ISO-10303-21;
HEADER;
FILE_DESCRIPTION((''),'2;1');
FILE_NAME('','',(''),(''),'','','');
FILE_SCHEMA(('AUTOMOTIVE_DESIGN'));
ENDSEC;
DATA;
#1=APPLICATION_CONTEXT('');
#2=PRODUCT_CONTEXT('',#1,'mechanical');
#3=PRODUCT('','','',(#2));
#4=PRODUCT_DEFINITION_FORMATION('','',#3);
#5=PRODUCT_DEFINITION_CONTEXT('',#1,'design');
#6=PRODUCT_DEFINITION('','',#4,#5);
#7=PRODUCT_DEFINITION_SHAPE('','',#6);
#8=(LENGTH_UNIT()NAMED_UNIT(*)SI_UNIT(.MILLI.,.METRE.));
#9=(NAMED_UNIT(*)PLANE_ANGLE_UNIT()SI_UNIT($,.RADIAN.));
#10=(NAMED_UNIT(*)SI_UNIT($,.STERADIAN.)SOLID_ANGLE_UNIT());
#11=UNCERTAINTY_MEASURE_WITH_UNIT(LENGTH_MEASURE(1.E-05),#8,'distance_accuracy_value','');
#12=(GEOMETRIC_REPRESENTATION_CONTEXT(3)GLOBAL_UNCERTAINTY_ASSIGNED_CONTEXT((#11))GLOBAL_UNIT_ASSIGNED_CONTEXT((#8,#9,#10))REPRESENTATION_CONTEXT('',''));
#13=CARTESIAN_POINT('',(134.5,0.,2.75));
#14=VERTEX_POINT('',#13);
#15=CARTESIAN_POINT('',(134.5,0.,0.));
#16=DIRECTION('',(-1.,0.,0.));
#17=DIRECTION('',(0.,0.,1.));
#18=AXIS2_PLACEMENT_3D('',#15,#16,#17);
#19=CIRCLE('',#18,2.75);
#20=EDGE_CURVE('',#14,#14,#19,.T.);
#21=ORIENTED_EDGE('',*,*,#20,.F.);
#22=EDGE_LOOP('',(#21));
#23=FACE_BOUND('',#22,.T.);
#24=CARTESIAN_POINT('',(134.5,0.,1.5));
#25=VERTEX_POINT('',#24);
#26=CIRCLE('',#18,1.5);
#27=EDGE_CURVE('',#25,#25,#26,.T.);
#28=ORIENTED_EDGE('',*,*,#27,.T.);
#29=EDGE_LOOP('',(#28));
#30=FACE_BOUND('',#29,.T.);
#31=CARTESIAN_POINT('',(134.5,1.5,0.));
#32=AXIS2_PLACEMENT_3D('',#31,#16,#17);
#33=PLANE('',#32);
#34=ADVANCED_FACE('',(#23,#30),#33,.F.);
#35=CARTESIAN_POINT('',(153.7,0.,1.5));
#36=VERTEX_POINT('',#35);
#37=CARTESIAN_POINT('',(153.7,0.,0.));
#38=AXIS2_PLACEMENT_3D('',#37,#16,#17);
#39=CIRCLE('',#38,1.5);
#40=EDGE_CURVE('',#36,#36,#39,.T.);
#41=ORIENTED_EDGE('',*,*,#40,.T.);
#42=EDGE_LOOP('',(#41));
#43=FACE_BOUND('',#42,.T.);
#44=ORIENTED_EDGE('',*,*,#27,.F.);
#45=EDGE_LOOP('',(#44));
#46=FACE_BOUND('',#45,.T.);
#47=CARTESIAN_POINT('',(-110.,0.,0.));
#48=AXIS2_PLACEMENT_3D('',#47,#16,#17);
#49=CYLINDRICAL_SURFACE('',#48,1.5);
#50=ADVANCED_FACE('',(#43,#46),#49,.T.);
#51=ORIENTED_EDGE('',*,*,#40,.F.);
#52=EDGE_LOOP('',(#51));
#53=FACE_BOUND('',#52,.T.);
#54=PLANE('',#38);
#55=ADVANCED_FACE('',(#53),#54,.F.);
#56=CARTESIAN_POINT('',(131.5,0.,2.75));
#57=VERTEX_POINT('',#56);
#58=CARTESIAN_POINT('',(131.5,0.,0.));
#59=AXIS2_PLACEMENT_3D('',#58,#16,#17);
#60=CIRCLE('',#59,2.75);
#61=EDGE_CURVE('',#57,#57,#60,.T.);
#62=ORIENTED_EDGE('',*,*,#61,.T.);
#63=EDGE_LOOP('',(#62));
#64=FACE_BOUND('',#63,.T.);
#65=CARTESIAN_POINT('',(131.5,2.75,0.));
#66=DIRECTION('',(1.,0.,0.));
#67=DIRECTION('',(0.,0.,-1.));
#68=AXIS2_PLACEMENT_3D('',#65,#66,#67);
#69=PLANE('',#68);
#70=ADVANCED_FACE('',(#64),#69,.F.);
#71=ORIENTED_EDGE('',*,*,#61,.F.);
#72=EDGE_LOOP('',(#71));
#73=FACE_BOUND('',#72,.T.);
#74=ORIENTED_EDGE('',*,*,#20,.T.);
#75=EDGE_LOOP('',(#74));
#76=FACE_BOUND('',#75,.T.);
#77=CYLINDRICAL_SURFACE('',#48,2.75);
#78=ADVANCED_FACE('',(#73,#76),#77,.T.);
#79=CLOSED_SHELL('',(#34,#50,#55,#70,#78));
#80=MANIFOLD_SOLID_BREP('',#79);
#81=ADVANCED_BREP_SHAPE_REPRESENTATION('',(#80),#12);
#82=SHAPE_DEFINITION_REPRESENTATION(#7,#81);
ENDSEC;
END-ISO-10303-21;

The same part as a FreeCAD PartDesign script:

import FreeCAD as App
import Part
import Sketcher

V = App.Vector
Q = App.Units.Quantity

doc = App.newDocument("Part")
params = doc.addObject("Spreadsheet::Sheet", "Params")
for row, (alias, value) in enumerate([
    ("sketch1_width", "3 mm"),
    ("sketch1_width2", "22.2 mm"),
    ("sketch1_height", "1.5 mm"),
    ("sketch1_height2", "1.25 mm"),
    ("revolution_angle", "360 deg"),
], start=1):
    params.set(f"A{row}", alias)
    params.set(f"B{row}", "=" + value)
    params.setAlias(f"B{row}", alias)

body = doc.addObject("PartDesign::Body", "Body")

# Sketch on XY plane
sketch1 = body.newObject("Sketcher::SketchObject", "Sketch")
sketch1.AttachmentSupport = (doc.getObject("XY_Plane"), [""])
sketch1.MapMode = "FlatFace"
sketch1.addGeometry([
    Part.LineSegment(V(131.5, 0, 0), V(153.7, 0, 0)),  # 0
    Part.LineSegment(V(153.7, 0, 0), V(153.7, 1.5, 0)),  # 1
    Part.LineSegment(V(153.7, 1.5, 0), V(134.5, 1.5, 0)),  # 2
    Part.LineSegment(V(134.5, 1.5, 0), V(134.5, 2.75, 0)),  # 3
    Part.LineSegment(V(134.5, 2.75, 0), V(131.5, 2.75, 0)),  # 4
    Part.LineSegment(V(131.5, 2.75, 0), V(131.5, 0, 0)),  # 5
], False)
sketch1.addConstraint([
    Sketcher.Constraint("Coincident", 0, 2, 1, 1),
    Sketcher.Constraint("Coincident", 1, 2, 2, 1),
    Sketcher.Constraint("Coincident", 2, 2, 3, 1),
    Sketcher.Constraint("Coincident", 3, 2, 4, 1),
    Sketcher.Constraint("Coincident", 4, 2, 5, 1),
    Sketcher.Constraint("Coincident", 5, 2, 0, 1),
    Sketcher.Constraint("Horizontal", 0),
    Sketcher.Constraint("Vertical", 1),
    Sketcher.Constraint("Horizontal", 2),
    Sketcher.Constraint("Vertical", 3),
    Sketcher.Constraint("Horizontal", 4),
    Sketcher.Constraint("Vertical", 5),
    Sketcher.Constraint("PointOnObject", 0, 2, -1),
    Sketcher.Constraint("DistanceX", 4, 2, 4, 1, Q("3 mm")),
    Sketcher.Constraint("DistanceX", 0, 1, 0, 2, Q("22.2 mm")),
    Sketcher.Constraint("DistanceY", 1, 1, 1, 2, Q("1.5 mm")),
    Sketcher.Constraint("DistanceY", 3, 1, 3, 2, Q("1.25 mm")),
    Sketcher.Constraint("DistanceX", -1, 1, 0, 2, Q("153.7 mm")),
])
sketch1.setExpression("Constraints[13]", "Params.sketch1_width")
sketch1.setExpression("Constraints[14]", "Params.sketch1_width2")
sketch1.setExpression("Constraints[15]", "Params.sketch1_height")
sketch1.setExpression("Constraints[16]", "Params.sketch1_height2")
revolution = body.newObject("PartDesign::Revolution", "Revolution")
revolution.Profile = sketch1
revolution.ReferenceAxis = (sketch1, ["H_Axis"])
revolution.setExpression("Angle", "Params.revolution_angle")

doc.recompute()
